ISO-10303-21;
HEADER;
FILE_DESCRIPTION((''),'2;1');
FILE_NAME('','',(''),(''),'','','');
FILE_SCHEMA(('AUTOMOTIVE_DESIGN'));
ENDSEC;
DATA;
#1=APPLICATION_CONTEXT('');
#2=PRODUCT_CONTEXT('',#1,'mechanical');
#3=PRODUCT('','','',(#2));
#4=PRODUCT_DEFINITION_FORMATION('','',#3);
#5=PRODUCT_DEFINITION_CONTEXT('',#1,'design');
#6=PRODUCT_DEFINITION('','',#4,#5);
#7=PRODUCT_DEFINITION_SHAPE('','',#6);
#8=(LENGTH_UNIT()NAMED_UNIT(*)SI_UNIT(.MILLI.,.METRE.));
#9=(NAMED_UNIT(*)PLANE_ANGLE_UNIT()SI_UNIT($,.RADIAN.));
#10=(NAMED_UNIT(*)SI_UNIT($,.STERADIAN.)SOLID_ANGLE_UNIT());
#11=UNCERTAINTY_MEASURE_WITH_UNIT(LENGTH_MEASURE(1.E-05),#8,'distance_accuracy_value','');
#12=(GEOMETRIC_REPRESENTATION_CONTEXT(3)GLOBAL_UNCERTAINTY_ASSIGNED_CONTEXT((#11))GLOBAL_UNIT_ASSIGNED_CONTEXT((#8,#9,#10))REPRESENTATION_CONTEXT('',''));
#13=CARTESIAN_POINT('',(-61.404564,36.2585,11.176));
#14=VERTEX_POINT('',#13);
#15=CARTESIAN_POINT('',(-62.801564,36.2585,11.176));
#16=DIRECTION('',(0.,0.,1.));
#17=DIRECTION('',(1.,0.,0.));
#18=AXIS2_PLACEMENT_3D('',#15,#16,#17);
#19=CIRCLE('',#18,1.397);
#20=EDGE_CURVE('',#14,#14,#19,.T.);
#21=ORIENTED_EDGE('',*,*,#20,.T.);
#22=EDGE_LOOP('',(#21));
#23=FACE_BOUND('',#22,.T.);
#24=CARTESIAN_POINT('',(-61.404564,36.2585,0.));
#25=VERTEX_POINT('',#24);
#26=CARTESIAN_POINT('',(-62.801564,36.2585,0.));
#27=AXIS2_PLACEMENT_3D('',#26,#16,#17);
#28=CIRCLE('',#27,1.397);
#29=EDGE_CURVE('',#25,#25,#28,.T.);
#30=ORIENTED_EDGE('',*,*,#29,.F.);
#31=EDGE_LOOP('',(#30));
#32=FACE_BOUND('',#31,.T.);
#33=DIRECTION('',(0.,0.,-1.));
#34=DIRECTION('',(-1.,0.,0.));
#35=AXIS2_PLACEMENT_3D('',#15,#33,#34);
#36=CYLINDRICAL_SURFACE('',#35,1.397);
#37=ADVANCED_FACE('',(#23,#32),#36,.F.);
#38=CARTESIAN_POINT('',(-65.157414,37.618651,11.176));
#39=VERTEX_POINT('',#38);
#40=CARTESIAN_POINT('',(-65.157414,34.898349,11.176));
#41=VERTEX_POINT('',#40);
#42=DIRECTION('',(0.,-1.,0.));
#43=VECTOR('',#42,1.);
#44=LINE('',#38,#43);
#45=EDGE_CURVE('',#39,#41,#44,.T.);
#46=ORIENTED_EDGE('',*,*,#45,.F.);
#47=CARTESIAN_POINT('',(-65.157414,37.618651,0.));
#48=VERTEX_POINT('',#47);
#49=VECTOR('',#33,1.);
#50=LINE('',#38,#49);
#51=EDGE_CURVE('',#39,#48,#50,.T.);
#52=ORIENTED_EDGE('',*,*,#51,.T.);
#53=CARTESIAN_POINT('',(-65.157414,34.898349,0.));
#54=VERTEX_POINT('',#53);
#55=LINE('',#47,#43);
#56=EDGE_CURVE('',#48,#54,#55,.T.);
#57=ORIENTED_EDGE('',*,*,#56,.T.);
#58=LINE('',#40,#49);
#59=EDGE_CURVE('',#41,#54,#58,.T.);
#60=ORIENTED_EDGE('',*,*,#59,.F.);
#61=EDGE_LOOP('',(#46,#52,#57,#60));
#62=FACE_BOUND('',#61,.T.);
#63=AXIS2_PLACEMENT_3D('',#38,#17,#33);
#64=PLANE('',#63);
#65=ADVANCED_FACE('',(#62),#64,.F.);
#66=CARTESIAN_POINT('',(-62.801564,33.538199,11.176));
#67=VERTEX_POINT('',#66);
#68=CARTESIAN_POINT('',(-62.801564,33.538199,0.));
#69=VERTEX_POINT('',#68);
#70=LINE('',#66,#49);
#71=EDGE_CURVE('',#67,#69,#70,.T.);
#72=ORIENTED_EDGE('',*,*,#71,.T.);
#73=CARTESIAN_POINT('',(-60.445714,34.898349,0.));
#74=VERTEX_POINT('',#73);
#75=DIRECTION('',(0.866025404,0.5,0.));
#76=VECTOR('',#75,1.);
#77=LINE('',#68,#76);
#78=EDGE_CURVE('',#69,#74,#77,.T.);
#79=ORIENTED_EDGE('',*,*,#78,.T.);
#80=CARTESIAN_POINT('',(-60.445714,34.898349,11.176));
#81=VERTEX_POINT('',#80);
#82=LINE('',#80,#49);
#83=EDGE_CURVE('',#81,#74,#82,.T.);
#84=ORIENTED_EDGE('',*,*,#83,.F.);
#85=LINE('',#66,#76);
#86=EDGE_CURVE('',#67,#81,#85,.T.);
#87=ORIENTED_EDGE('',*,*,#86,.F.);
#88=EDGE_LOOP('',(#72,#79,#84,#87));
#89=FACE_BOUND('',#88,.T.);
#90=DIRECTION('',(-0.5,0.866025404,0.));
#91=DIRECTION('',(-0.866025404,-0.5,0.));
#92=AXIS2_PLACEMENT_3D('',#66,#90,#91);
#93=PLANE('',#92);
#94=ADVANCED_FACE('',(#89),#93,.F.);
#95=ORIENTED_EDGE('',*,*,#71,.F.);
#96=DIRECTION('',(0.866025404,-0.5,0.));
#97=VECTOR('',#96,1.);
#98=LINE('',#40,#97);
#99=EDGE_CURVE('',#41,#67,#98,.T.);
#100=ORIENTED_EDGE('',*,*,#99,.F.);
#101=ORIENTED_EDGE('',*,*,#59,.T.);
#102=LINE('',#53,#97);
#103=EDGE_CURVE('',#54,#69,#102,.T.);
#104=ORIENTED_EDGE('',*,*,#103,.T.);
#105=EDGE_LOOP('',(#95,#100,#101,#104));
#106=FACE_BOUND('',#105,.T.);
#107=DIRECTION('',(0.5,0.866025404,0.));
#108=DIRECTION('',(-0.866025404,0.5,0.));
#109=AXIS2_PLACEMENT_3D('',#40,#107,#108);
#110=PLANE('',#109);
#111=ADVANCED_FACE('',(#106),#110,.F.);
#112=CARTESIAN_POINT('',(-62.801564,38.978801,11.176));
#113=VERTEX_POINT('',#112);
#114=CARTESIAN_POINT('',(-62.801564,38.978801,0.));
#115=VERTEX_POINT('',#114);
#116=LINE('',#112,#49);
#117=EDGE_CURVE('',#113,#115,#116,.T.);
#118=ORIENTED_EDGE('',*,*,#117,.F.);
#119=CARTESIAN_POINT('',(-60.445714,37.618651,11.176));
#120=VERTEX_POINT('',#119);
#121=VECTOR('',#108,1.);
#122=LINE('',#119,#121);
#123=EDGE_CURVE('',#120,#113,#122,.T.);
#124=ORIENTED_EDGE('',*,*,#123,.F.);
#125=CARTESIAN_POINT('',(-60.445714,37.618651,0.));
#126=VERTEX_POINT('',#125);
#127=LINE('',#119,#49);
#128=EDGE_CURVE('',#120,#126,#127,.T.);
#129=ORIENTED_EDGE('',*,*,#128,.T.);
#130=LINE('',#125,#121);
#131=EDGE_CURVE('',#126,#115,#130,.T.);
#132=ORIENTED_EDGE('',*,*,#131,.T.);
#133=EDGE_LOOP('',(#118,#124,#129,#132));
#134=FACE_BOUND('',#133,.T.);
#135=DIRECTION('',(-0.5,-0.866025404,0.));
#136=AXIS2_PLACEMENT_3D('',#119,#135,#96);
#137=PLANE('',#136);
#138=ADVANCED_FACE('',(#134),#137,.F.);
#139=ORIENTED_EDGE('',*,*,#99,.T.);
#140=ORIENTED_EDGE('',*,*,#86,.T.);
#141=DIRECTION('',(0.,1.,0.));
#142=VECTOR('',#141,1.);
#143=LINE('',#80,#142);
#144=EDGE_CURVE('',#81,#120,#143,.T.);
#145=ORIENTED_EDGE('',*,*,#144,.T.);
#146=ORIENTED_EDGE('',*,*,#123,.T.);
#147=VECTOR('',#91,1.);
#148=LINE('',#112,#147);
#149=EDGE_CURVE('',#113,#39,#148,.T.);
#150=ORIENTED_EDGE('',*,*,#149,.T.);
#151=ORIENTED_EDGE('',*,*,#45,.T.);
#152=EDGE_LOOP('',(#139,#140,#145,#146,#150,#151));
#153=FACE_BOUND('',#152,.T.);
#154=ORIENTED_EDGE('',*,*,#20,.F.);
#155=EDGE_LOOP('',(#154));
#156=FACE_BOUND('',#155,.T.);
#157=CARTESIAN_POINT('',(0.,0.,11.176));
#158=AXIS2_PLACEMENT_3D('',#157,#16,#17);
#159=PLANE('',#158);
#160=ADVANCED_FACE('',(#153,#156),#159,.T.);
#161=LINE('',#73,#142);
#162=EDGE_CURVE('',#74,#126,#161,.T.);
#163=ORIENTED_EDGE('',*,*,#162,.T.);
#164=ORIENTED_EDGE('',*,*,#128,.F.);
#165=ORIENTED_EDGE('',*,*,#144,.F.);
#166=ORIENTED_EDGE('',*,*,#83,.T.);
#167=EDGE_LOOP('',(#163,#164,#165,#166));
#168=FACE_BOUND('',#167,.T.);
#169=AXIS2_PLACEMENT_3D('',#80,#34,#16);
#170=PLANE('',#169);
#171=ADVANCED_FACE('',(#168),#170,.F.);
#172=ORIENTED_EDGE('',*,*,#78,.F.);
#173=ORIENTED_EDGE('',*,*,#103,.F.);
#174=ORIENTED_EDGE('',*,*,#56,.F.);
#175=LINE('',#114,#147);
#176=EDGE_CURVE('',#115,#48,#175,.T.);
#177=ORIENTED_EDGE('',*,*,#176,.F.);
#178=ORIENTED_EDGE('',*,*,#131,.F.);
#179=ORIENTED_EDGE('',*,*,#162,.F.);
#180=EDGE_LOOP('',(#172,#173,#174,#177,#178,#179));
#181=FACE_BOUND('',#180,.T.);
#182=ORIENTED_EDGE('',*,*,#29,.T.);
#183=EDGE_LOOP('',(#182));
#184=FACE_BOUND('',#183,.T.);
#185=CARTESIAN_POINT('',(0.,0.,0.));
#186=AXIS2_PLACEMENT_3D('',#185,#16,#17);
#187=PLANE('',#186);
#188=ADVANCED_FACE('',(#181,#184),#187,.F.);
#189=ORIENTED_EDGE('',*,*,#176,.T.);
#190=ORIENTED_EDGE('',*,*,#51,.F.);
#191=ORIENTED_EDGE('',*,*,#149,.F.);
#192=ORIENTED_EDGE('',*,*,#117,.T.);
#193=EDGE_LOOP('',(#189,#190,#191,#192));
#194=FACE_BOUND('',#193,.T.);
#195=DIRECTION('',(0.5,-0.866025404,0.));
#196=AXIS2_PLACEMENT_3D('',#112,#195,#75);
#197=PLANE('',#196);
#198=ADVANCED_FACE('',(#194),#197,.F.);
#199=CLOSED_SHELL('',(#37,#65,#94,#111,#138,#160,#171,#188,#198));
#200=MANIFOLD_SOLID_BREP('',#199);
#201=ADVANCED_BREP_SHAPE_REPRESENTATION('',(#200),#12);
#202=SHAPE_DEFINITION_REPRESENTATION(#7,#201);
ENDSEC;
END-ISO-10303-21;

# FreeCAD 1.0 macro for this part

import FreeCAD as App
import Part
import Sketcher
Q = App.Units.Quantity


def add_polygon(sketch, points):
    """Adds a closed chain of lines whose ends are joined by coincident constraints."""
    first, n = sketch.GeometryCount, len(points)
    for a, b in zip(points, points[1:] + points[:1]):
        sketch.addGeometry(Part.LineSegment(App.Vector(*a, 0), App.Vector(*b, 0)), False)
    for i in range(n):
        sketch.addConstraint(Sketcher.Constraint("Coincident", first + i, 2, first + (i + 1) % n, 1))

doc = App.newDocument("Part")
params = doc.addObject("Spreadsheet::Sheet", "Params")
for row, (alias, value) in enumerate([
    ("sketch1_diameter", "0.11 in"),
    ("pad1_length", "0.44 in"),
], start=1):
    params.set(f"A{row}", alias)
    params.set(f"B{row}", "=" + value)
    params.setAlias(f"B{row}", alias)

body = doc.addObject("PartDesign::Body", "Body")

sketch1 = body.newObject("Sketcher::SketchObject", "Sketch")
sketch1.AttachmentSupport = (doc.getObject("XY_Plane"), [""])
sketch1.MapMode = "FlatFace"
add_polygon(sketch1, [(-62.8, 33.5), (-60.4, 34.9), (-60.4, 37.6), (-62.8, 39), (-65.2, 37.6), (-65.2, 34.9)])
sketch1.addGeometry(Part.Circle(App.Vector(-62.8, 36.3, 0), App.Vector(0, 0, 1), 1.4), False)
sketch1.addConstraint([
    Sketcher.Constraint("Vertical", 1),
    Sketcher.Constraint("Vertical", 4),
    Sketcher.Constraint("Parallel", 0, 3),
    Sketcher.Constraint("Parallel", 2, 5),
    Sketcher.Constraint("Horizontal", 1, 2, 3, 2),
    Sketcher.Constraint("Horizontal", 0, 2, 4, 2),
    Sketcher.Constraint("Vertical", 6, 3, 2, 2),
    Sketcher.Constraint("Vertical", 2, 2, 5, 2),
    Sketcher.Constraint("Diameter", 6, Q("0.11 in")),
    Sketcher.Constraint("Angle", 0, Q("30 deg")),
    Sketcher.Constraint("DistanceY", 1, 1, 1, 2, 2.720301),
    Sketcher.Constraint("DistanceY", -1, 1, 6, 3, Q("1.4275 in")),
    Sketcher.Constraint("DistanceX", 3, 2, 1, 2, Q("0.1855 in")),
    Sketcher.Constraint("DistanceY", -1, 1, 2, 2, 38.978801),
    Sketcher.Constraint("DistanceX", 6, 3, -1, 1, 62.801564),
])
sketch1.setExpression("Constraints[14]", "Params.sketch1_diameter")
pad1 = body.newObject("PartDesign::Pad", "Pad")
pad1.Profile = sketch1
pad1.setExpression("Length", "Params.pad1_length")

doc.recompute()
